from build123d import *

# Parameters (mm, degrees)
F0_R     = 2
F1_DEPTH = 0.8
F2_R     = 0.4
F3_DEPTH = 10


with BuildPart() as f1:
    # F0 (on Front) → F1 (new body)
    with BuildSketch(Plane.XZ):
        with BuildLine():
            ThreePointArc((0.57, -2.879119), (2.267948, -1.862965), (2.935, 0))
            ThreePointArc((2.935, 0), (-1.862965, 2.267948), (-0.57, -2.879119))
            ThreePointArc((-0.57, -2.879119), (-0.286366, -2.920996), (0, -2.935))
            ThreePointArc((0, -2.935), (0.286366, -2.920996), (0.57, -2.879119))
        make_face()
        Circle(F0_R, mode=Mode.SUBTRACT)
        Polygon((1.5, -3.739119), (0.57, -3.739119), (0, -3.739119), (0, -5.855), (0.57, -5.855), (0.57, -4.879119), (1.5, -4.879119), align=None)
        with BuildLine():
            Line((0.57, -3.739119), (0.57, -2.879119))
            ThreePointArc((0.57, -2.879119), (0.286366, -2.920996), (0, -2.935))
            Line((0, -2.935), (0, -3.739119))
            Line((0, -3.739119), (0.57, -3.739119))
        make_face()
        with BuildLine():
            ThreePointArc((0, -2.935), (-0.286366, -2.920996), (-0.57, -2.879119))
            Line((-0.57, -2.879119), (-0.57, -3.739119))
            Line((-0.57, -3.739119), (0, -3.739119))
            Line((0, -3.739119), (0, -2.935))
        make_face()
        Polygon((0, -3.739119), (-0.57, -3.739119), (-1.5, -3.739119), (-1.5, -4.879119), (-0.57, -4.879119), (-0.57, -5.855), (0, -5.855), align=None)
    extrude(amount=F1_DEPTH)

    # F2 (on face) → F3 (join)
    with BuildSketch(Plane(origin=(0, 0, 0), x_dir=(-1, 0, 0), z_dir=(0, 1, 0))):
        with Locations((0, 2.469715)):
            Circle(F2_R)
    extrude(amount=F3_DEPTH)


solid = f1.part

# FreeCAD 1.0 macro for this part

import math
import FreeCAD as App
import Part
import Sketcher
from FreeCAD import Vector
Q = App.Units.Quantity

doc = App.newDocument("Part")
body = doc.addObject("PartDesign::Body", "Body")

sketch1 = body.newObject("Sketcher::SketchObject", "Sketch")
sketch1.AttachmentSupport = (doc.getObject("XZ_Plane"), [""])
sketch1.MapMode = "FlatFace"
sketch1.addGeometry([
    Part.ArcOfCircle(Part.Circle(Vector(0.000001, -0.000001, 0), Vector(0, 0, 1), 2.934999), math.radians(-78.801557), math.radians(0.000013)),
    Part.ArcOfCircle(Part.Circle(Vector(0, 0, 0), Vector(0, 0, 1), 2.935), math.radians(0), math.radians(258.801553)),
    Part.LineSegment(Vector(-0.57, -2.879119, 0), Vector(-0.57, -3.739119, 0)),
    Part.LineSegment(Vector(-0.57, -3.739119, 0), Vector(-1.5, -3.739119, 0)),
    Part.LineSegment(Vector(-1.5, -3.739119, 0), Vector(-1.5, -4.879119, 0)),
    Part.LineSegment(Vector(-1.5, -4.879119, 0), Vector(-0.57, -4.879119, 0)),
    Part.LineSegment(Vector(-0.57, -4.879119, 0), Vector(-0.57, -5.855, 0)),
    Part.LineSegment(Vector(-0.57, -5.855, 0), Vector(0.57, -5.855, 0)),
    Part.LineSegment(Vector(0.57, -5.855, 0), Vector(0.57, -4.879119, 0)),
    Part.LineSegment(Vector(0.57, -4.879119, 0), Vector(1.5, -4.879119, 0)),
    Part.LineSegment(Vector(1.5, -4.879119, 0), Vector(1.5, -3.739119, 0)),
    Part.LineSegment(Vector(1.5, -3.739119, 0), Vector(0.57, -3.739119, 0)),
    Part.LineSegment(Vector(0.57, -3.739119, 0), Vector(0.57, -2.879119, 0)),
    Part.Circle(Vector(0, 0, 0), Vector(0, 0, 1), 2),
], False)
sketch1.addConstraint([
    Sketcher.Constraint("Tangent", 0, 2, 1, 1),
    Sketcher.Constraint("Coincident", 1, 2, 2, 1),
    Sketcher.Constraint("Coincident", 2, 2, 3, 1),
    Sketcher.Constraint("Coincident", 3, 2, 4, 1),
    Sketcher.Constraint("Coincident", 4, 2, 5, 1),
    Sketcher.Constraint("Coincident", 5, 2, 6, 1),
    Sketcher.Constraint("Coincident", 6, 2, 7, 1),
    Sketcher.Constraint("Coincident", 7, 2, 8, 1),
    Sketcher.Constraint("Coincident", 8, 2, 9, 1),
    Sketcher.Constraint("Coincident", 9, 2, 10, 1),
    Sketcher.Constraint("Coincident", 10, 2, 11, 1),
    Sketcher.Constraint("Coincident", 11, 2, 12, 1),
    Sketcher.Constraint("Coincident", 12, 2, 0, 1),
    Sketcher.Constraint("Vertical", 2),
    Sketcher.Constraint("Horizontal", 3),
    Sketcher.Constraint("Vertical", 4),
    Sketcher.Constraint("Horizontal", 5),
    Sketcher.Constraint("Vertical", 6),
    Sketcher.Constraint("Horizontal", 7),
    Sketcher.Constraint("Vertical", 8),
    Sketcher.Constraint("Horizontal", 9),
    Sketcher.Constraint("Vertical", 10),
    Sketcher.Constraint("Horizontal", 11),
    Sketcher.Constraint("Vertical", 12),
    Sketcher.Constraint("Coincident", 0, 3, -1, 1),
    Sketcher.Constraint("Coincident", 13, 3, -1, 1),
    Sketcher.Constraint("Equal", 0, 1),
    Sketcher.Constraint("Symmetric", 5, 2, 8, 2, -2),
    Sketcher.Constraint("Symmetric", 3, 2, 10, 2, -2),
    Sketcher.Constraint("PointOnObject", 0, 2, -1),
    Sketcher.Constraint("Horizontal", 1, 2, 12, 2),
    Sketcher.Constraint("Vertical", 2, 2, 5, 2),
    Sketcher.Constraint("Equal", 7, 4),
    Sketcher.Constraint("Diameter", 13, Q("4 mm")),
    Sketcher.Constraint("Radius", 0, Q("2.934999 mm")),
    Sketcher.Constraint("DistanceY", 4, 2, 1, 2, Q("2 mm")),
    Sketcher.Constraint("DistanceX", 3, 2, 3, 1, Q("0.93 mm")),
    Sketcher.Constraint("DistanceX", 7, 1, 7, 2, Q("1.14 mm")),
    Sketcher.Constraint("DistanceY", 6, 2, -1, 1, Q("5.855 mm")),
])
pad1 = body.newObject("PartDesign::Pad", "Pad")
pad1.Profile = sketch1
pad1.Length = 0.8

sketch2 = body.newObject("Sketcher::SketchObject", "Sketch001")
sketch2.AttachmentSupport = (doc.getObject("XZ_Plane"), [""])
sketch2.MapMode = "FlatFace"
sketch2.addGeometry(Part.Circle(Vector(0, 2.469715, 0), Vector(0, 0, 1), 0.4), False)
sketch2.addConstraint([
    Sketcher.Constraint("PointOnObject", 0, 3, -2),
    Sketcher.Constraint("Diameter", 0, Q("0.8 mm")),
    Sketcher.Constraint("DistanceY", -1, 1, 0, 3, Q("2.469715 mm")),
])
pad2 = body.newObject("PartDesign::Pad", "Pad001")
pad2.Profile = sketch2
pad2.Length = 10
pad2.Reversed = True

doc.recompute()
